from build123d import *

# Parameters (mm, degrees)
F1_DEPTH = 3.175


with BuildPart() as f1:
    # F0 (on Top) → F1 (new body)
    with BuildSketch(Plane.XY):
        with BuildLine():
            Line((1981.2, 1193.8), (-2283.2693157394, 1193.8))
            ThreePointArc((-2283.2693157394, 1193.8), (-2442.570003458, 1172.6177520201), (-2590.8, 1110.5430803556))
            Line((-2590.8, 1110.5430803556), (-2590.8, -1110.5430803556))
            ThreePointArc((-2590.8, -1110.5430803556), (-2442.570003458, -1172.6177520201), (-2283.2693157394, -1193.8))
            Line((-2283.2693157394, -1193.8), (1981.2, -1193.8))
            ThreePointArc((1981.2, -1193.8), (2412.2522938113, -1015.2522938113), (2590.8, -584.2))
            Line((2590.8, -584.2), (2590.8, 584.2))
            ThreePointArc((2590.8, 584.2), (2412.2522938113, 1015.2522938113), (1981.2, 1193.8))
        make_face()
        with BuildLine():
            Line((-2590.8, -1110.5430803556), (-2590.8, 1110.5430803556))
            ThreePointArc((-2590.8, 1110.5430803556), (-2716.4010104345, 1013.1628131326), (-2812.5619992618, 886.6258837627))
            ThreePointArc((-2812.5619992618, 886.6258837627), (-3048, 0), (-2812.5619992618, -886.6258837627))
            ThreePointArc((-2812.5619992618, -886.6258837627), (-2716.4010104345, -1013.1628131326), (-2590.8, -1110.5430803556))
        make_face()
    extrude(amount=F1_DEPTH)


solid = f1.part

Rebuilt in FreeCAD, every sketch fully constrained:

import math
import FreeCAD as App
import Part
import Sketcher
from FreeCAD import Vector
Q = App.Units.Quantity

doc = App.newDocument("Part")
body = doc.addObject("PartDesign::Body", "Body")

sketch1 = body.newObject("Sketcher::SketchObject", "Sketch")
sketch1.AttachmentSupport = (doc.getObject("XY_Plane"), [""])
sketch1.MapMode = "FlatFace"
sketch1.addGeometry([
    Part.LineSegment(Vector(1981, 1194, 0), Vector(-2283, 1194, 0)),
    Part.ArcOfCircle(Part.Circle(Vector(-2283, 584, 0), Vector(0, 0, 1), 610), math.radians(90), math.radians(150)),
    Part.ArcOfCircle(Part.Circle(Vector(-1261, 0, 0), Vector(0, 0, 1), 1787), math.radians(150), math.radians(210)),
    Part.ArcOfCircle(Part.Circle(Vector(-2283, -584, 0), Vector(0, 0, 1), 610), math.radians(-150), math.radians(-90)),
    Part.LineSegment(Vector(-2283, -1194, 0), Vector(1981, -1194, 0)),
    Part.ArcOfCircle(Part.Circle(Vector(1981, -584, 0), Vector(0, 0, 1), 610), math.radians(-90), math.radians(0)),
    Part.LineSegment(Vector(2591, -584, 0), Vector(2591, 584, 0)),
    Part.ArcOfCircle(Part.Circle(Vector(1981, 584, 0), Vector(0, 0, 1), 610), math.radians(0), math.radians(90)),
], False)
sketch1.addConstraint([
    Sketcher.Constraint("Tangent", 0, 2, 1, 1),
    Sketcher.Constraint("Tangent", 1, 2, 2, 1),
    Sketcher.Constraint("Tangent", 2, 2, 3, 1),
    Sketcher.Constraint("Tangent", 3, 2, 4, 1),
    Sketcher.Constraint("Tangent", 4, 2, 5, 1),
    Sketcher.Constraint("Tangent", 5, 2, 6, 1),
    Sketcher.Constraint("Tangent", 6, 2, 7, 1),
    Sketcher.Constraint("Tangent", 7, 2, 0, 1),
    Sketcher.Constraint("Horizontal", 0),
    Sketcher.Constraint("Horizontal", 4),
    Sketcher.Constraint("Vertical", 6),
    Sketcher.Constraint("Equal", 1, 3),
    Sketcher.Constraint("Equal", 3, 5),
    Sketcher.Constraint("Equal", 5, 7),
    Sketcher.Constraint("Symmetric", 1, 3, 3, 3, -1),
    Sketcher.Constraint("Radius", 1, Q("24 in")),
    Sketcher.Constraint("DistanceY", 6, 1, 6, 2, Q("46 in")),
    Sketcher.Constraint("DistanceX", -1, 1, 5, 3, Q("78 in")),
    Sketcher.Constraint("Radius", 2, Q("1787.172222 mm")),
    Sketcher.Constraint("DistanceX", 0, 2, 0, 1, Q("4264.469316 mm")),
])
pad1 = body.newObject("PartDesign::Pad", "Pad")
pad1.Profile = sketch1
pad1.Length = Q("0.125 in")

doc.recompute()
